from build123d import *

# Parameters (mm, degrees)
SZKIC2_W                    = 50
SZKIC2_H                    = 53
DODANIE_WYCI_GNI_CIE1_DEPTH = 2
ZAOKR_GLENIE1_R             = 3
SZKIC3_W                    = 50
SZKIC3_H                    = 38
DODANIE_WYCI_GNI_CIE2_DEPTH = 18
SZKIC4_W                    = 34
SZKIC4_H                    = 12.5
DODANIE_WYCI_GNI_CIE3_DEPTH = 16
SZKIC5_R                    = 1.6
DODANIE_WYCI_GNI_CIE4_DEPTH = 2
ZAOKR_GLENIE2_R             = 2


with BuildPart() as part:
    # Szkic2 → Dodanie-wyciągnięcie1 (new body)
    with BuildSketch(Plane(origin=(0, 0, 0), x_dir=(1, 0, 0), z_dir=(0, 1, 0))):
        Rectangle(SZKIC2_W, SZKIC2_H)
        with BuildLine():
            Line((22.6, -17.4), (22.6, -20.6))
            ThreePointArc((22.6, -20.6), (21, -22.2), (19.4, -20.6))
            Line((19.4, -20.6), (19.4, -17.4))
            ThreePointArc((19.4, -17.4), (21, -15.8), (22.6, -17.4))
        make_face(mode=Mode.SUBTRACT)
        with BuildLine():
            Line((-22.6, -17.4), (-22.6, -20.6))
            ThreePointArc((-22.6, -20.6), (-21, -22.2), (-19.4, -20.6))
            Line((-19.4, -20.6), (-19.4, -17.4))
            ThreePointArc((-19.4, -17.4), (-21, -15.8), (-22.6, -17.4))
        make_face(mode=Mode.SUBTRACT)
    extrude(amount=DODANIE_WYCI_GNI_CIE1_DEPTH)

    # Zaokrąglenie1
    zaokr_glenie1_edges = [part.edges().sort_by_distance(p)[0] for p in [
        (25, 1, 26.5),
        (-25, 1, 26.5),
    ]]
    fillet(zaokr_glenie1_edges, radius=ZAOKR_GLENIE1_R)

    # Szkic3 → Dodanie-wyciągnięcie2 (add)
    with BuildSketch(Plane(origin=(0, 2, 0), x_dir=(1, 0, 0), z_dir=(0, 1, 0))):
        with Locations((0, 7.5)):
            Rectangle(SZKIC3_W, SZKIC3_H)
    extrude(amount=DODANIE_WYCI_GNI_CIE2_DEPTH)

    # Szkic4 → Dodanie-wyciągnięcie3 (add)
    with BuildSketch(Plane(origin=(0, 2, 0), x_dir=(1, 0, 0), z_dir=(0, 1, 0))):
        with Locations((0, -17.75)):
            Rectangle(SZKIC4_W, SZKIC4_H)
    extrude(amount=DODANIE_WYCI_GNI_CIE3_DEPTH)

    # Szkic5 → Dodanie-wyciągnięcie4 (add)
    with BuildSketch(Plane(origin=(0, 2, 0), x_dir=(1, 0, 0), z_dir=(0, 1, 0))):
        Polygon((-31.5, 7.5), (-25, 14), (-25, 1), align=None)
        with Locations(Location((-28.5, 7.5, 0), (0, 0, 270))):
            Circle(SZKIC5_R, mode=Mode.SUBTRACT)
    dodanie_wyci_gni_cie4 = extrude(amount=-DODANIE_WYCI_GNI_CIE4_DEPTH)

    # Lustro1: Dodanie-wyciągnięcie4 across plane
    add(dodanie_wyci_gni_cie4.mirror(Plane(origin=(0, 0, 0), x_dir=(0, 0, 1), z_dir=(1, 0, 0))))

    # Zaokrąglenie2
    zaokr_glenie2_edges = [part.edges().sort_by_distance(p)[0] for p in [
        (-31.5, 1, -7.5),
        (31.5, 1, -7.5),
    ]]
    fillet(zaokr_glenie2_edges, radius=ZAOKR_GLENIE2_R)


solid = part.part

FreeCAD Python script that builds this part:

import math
import FreeCAD as App
import Part
import Sketcher
Q = App.Units.Quantity


def edges_at(feature, points):
    """Names of the edges that pass closest to the given points."""
    edges = feature.Shape.Edges
    near = lambda p: min(range(len(edges)), key=lambda i: edges[i].distToShape(Part.Vertex(*p))[0])
    return sorted({f"Edge{near(p) + 1}" for p in points})


def add_polygon(sketch, points):
    """Adds a closed chain of lines whose ends are joined by coincident constraints."""
    first, n = sketch.GeometryCount, len(points)
    for a, b in zip(points, points[1:] + points[:1]):
        sketch.addGeometry(Part.LineSegment(App.Vector(*a, 0), App.Vector(*b, 0)), False)
    for i in range(n):
        sketch.addConstraint(Sketcher.Constraint("Coincident", first + i, 2, first + (i + 1) % n, 1))

doc = App.newDocument("Part")
body = doc.addObject("PartDesign::Body", "Body")

sketch1 = body.newObject("Sketcher::SketchObject", "Sketch")
sketch1.AttachmentSupport = (doc.getObject("XZ_Plane"), [""])
sketch1.MapMode = "FlatFace"
add_polygon(sketch1, [(-25, -26.5), (-25, 26.5), (25, 26.5), (25, -26.5)])
sketch1.addGeometry(Part.LineSegment(App.Vector(-22.6, 20.6, 0), App.Vector(-22.6, 17.4, 0)), False)
sketch1.addGeometry(Part.ArcOfCircle(Part.Circle(App.Vector(-21, 17.4, 0), App.Vector(0, 0, 1), 1.6), math.radians(180), math.radians(360)), False)
sketch1.addGeometry(Part.LineSegment(App.Vector(-19.4, 17.4, 0), App.Vector(-19.4, 20.6, 0)), False)
sketch1.addGeometry(Part.ArcOfCircle(Part.Circle(App.Vector(-21, 20.6, 0), App.Vector(0, 0, 1), 1.6), math.radians(0), math.radians(180)), False)
sketch1.addGeometry(Part.ArcOfCircle(Part.Circle(App.Vector(21, 17.4, 0), App.Vector(0, 0, 1), 1.6), math.radians(180), math.radians(360)), False)
sketch1.addGeometry(Part.LineSegment(App.Vector(22.6, 17.4, 0), App.Vector(22.6, 20.6, 0)), False)
sketch1.addGeometry(Part.ArcOfCircle(Part.Circle(App.Vector(21, 20.6, 0), App.Vector(0, 0, 1), 1.6), math.radians(0), math.radians(180)), False)
sketch1.addGeometry(Part.LineSegment(App.Vector(19.4, 20.6, 0), App.Vector(19.4, 17.4, 0)), False)
sketch1.addConstraint([
    Sketcher.Constraint("Tangent", 4, 2, 5, 1),
    Sketcher.Constraint("Tangent", 5, 2, 6, 1),
    Sketcher.Constraint("Tangent", 6, 2, 7, 1),
    Sketcher.Constraint("Tangent", 7, 2, 4, 1),
    Sketcher.Constraint("Tangent", 8, 2, 9, 1),
    Sketcher.Constraint("Tangent", 9, 2, 10, 1),
    Sketcher.Constraint("Tangent", 10, 2, 11, 1),
    Sketcher.Constraint("Tangent", 11, 2, 8, 1),
    Sketcher.Constraint("Vertical", 0),
    Sketcher.Constraint("Horizontal", 1),
    Sketcher.Constraint("Vertical", 2),
    Sketcher.Constraint("Horizontal", 3),
    Sketcher.Constraint("Vertical", 4),
    Sketcher.Constraint("Vertical", 6),
    Sketcher.Constraint("Vertical", 9),
    Sketcher.Constraint("Vertical", 11),
    Sketcher.Constraint("Equal", 7, 8),
    Sketcher.Constraint("Symmetric", 0, 2, 2, 2, -1, 1),
    Sketcher.Constraint("Symmetric", 5, 3, 8, 3, -2),
    Sketcher.Constraint("Horizontal", 7, 3, 10, 3),
    Sketcher.Constraint("Radius", 5, Q("1.6 mm")),
    Sketcher.Constraint("DistanceX", 1, 1, 1, 2, Q("50 mm")),
    Sketcher.Constraint("DistanceY", 0, 1, 0, 2, Q("53 mm")),
    Sketcher.Constraint("DistanceY", 4, 2, 4, 1, Q("3.2 mm")),
    Sketcher.Constraint("DistanceX", 5, 3, -1, 1, Q("21 mm")),
    Sketcher.Constraint("DistanceY", -1, 1, 5, 3, Q("17.4 mm")),
])
pad1 = body.newObject("PartDesign::Pad", "Pad")
pad1.Profile = sketch1
pad1.Length = 2
pad1.Reversed = True
doc.recompute()

fillet = body.newObject("PartDesign::Fillet", "Fillet")
fillet.Base = (pad1, edges_at(pad1, [(25, 1, 26.5), (-25, 1, 26.5)]))
fillet.Radius = 3

sketch2 = body.newObject("Sketcher::SketchObject", "Sketch001")
sketch2.AttachmentSupport = (doc.getObject("XZ_Plane"), [""])
sketch2.MapMode = "FlatFace"
sketch2.AttachmentOffset = App.Placement(App.Vector(0, 0, -2), App.Rotation())
add_polygon(sketch2, [(-25, -26), (-25, 12), (25, 12), (25, -26)])
sketch2.addConstraint([
    Sketcher.Constraint("Vertical", 0),
    Sketcher.Constraint("Horizontal", 1),
    Sketcher.Constraint("Vertical", 2),
    Sketcher.Constraint("Horizontal", 3),
    Sketcher.Constraint("DistanceX", 1, 1, 1, 2, Q("50 mm")),
    Sketcher.Constraint("DistanceY", 0, 1, 0, 2, Q("38 mm")),
    Sketcher.Constraint("DistanceX", 0, 2, -1, 1, Q("25 mm")),
    Sketcher.Constraint("DistanceY", -1, 1, 0, 2, Q("11.5 mm")),
])
pad2 = body.newObject("PartDesign::Pad", "Pad001")
pad2.Profile = sketch2
pad2.Length = 18
pad2.Reversed = True

sketch3 = body.newObject("Sketcher::SketchObject", "Sketch002")
sketch3.AttachmentSupport = (doc.getObject("XZ_Plane"), [""])
sketch3.MapMode = "FlatFace"
sketch3.AttachmentOffset = App.Placement(App.Vector(0, 0, -2), App.Rotation())
add_polygon(sketch3, [(-17, 12), (-17, 24), (17, 24), (17, 12)])
sketch3.addConstraint([
    Sketcher.Constraint("Vertical", 0),
    Sketcher.Constraint("Horizontal", 1),
    Sketcher.Constraint("Vertical", 2),
    Sketcher.Constraint("Horizontal", 3),
    Sketcher.Constraint("DistanceX", 1, 1, 1, 2, Q("34 mm")),
    Sketcher.Constraint("DistanceY", 0, 1, 0, 2, Q("12.5 mm")),
    Sketcher.Constraint("DistanceX", 0, 2, -1, 1, Q("17 mm")),
    Sketcher.Constraint("DistanceY", -1, 1, 0, 2, Q("24 mm")),
])
pad3 = body.newObject("PartDesign::Pad", "Pad002")
pad3.Profile = sketch3
pad3.Length = 16
pad3.Reversed = True

sketch4 = body.newObject("Sketcher::SketchObject", "Sketch003")
sketch4.AttachmentSupport = (doc.getObject("XZ_Plane"), [""])
sketch4.MapMode = "FlatFace"
sketch4.AttachmentOffset = App.Placement(App.Vector(0, 0, -2), App.Rotation())
add_polygon(sketch4, [(-25, -14), (-31.5, -7.5), (-25, -1)])
sketch4.addGeometry(Part.Circle(App.Vector(-28.5, -7.5, 0), App.Vector(0, 0, 1), 1.6), False)
sketch4.addConstraint([
    Sketcher.Constraint("Vertical", 2),
    Sketcher.Constraint("Perpendicular", 0, 1),
    Sketcher.Constraint("Horizontal", 3, 3, 0, 2),
    Sketcher.Constraint("Equal", 0, 1),
    Sketcher.Constraint("Diameter", 3, Q("3.2 mm")),
    Sketcher.Constraint("DistanceY", 2, 2, 2, 1, Q("13 mm")),
    Sketcher.Constraint("DistanceX", 1, 2, -1, 1, Q("25 mm")),
    Sketcher.Constraint("DistanceY", 1, 2, -1, 1, Q("1 mm")),
    Sketcher.Constraint("DistanceX", 0, 2, 3, 3, Q("3 mm")),
])
pad4 = body.newObject("PartDesign::Pad", "Pad003")
pad4.Profile = sketch4
pad4.Length = 2
doc.recompute()

mirrored = body.newObject("PartDesign::Mirrored", "Mirrored")
mirrored.Originals = [pad4]
mirrored.MirrorPlane = (doc.getObject("YZ_Plane"), [""])
body.Tip = mirrored
doc.recompute()

fillet2 = body.newObject("PartDesign::Fillet", "Fillet001")
fillet2.Base = (mirrored, edges_at(mirrored, [(-31.5, 1, -7.5), (31.5, 1, -7.5)]))
fillet2.Radius = 2

doc.recompute()
